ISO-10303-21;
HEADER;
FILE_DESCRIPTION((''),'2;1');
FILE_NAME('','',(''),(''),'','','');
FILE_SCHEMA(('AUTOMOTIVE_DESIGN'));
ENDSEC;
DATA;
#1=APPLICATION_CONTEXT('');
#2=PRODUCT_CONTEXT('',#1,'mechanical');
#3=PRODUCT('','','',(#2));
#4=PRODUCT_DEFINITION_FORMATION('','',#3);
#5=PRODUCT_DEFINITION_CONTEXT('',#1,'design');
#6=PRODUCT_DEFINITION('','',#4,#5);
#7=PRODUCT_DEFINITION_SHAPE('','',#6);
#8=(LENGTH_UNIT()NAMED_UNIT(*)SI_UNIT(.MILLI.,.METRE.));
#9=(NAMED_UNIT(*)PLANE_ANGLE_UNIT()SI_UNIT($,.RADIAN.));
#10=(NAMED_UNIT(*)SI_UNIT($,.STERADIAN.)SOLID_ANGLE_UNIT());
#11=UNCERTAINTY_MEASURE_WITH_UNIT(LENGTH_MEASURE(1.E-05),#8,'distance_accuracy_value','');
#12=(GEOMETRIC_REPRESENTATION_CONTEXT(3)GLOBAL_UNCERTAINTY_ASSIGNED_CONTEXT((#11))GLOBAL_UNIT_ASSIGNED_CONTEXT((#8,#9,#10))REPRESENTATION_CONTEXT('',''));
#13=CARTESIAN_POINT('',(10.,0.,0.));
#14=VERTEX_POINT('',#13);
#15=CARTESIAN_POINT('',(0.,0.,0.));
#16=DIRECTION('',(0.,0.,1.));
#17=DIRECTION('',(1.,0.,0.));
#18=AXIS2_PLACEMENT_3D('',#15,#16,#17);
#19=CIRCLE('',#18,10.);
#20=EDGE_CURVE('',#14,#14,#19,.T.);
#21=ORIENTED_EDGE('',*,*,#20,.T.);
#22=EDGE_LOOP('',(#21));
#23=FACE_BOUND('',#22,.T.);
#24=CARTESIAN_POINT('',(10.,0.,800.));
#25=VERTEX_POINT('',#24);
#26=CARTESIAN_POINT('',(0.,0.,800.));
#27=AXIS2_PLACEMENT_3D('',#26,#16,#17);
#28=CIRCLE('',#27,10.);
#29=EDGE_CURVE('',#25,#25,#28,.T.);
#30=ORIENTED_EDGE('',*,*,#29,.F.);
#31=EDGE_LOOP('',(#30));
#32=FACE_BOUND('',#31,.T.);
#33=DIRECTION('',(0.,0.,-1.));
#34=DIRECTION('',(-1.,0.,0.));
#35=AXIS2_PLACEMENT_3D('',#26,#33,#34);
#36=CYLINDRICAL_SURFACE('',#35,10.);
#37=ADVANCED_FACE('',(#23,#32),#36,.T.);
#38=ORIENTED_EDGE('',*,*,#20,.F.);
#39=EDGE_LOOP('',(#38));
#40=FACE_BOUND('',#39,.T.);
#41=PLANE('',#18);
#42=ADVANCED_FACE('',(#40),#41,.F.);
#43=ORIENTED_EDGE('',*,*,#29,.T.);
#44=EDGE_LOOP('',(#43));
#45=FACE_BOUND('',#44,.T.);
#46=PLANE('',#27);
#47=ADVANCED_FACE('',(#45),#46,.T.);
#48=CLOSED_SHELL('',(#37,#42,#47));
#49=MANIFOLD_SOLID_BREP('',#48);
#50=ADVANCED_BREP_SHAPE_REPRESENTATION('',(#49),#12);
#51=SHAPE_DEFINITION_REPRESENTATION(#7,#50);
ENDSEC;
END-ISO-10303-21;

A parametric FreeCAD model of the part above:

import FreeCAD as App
import Part
import Sketcher

V = App.Vector

doc = App.newDocument("Part")
body = doc.addObject("PartDesign::Body", "Body")

# Sketch on XY plane
sketch1 = body.newObject("Sketcher::SketchObject", "Sketch")
sketch1.AttachmentSupport = (doc.getObject("XY_Plane"), [""])
sketch1.MapMode = "FlatFace"
sketch1.addGeometry(Part.Circle(V(0, 0, 0), V(0, 0, 1), 10), False)
sketch1.addConstraint(Sketcher.Constraint("Coincident", 0, 3, -1, 1))
sketch1.addConstraint(Sketcher.Constraint("Diameter", 0, 20.0))
pad1 = body.newObject("PartDesign::Pad", "Pad")
pad1.Profile = sketch1
pad1.Length = 800

doc.recompute()
